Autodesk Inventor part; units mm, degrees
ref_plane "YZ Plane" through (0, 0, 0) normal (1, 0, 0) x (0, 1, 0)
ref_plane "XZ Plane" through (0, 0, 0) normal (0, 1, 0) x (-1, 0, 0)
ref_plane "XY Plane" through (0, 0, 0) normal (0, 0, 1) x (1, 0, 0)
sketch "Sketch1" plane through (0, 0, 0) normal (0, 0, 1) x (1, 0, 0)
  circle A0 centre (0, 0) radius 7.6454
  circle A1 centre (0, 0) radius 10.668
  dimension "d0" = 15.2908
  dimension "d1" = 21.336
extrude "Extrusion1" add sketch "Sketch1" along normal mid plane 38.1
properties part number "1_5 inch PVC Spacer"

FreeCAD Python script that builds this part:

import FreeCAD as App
import Part
import Sketcher

V = App.Vector
Q = App.Units.Quantity

doc = App.newDocument("Part")
params = doc.addObject("Spreadsheet::Sheet", "Params")
for row, (alias, value) in enumerate([
    ("sketch1_diameter", "0.84 in"),
    ("sketch1_diameter2", "0.602 in"),
    ("pad1_length", "1.5 in"),
], start=1):
    params.set(f"A{row}", alias)
    params.set(f"B{row}", "=" + value)
    params.setAlias(f"B{row}", alias)

body = doc.addObject("PartDesign::Body", "Body")

sketch1 = doc.addObject("Sketcher::SketchObject", "Sketch")
body.addObject(sketch1)
sketch1.AttachmentSupport = (doc.XY_Plane, [""])
sketch1.MapMode = "FlatFace"
sketch1.addGeometry(Part.Circle(V(0, 0, 0), V(0, 0, 1), 11), False)
sketch1.addGeometry(Part.Circle(V(0, 0, 0), V(0, 0, 1), 8), False)
sketch1.addConstraint(Sketcher.Constraint("Coincident", 0, 3, -1, 1))
sketch1.addConstraint(Sketcher.Constraint("Coincident", 1, 3, -1, 1))
sketch1.addConstraint(Sketcher.Constraint("Diameter", 0, Q("0.84 in")))
sketch1.addConstraint(Sketcher.Constraint("Diameter", 1, Q("0.602 in")))
sketch1.setExpression("Constraints[2]", "Params.sketch1_diameter")
sketch1.setExpression("Constraints[3]", "Params.sketch1_diameter2")
pad1 = doc.addObject("PartDesign::Pad", "Pad")
body.addObject(pad1)
pad1.Profile = sketch1
pad1.setExpression("Length", "Params.pad1_length")
pad1.Midplane = True

doc.recompute()
